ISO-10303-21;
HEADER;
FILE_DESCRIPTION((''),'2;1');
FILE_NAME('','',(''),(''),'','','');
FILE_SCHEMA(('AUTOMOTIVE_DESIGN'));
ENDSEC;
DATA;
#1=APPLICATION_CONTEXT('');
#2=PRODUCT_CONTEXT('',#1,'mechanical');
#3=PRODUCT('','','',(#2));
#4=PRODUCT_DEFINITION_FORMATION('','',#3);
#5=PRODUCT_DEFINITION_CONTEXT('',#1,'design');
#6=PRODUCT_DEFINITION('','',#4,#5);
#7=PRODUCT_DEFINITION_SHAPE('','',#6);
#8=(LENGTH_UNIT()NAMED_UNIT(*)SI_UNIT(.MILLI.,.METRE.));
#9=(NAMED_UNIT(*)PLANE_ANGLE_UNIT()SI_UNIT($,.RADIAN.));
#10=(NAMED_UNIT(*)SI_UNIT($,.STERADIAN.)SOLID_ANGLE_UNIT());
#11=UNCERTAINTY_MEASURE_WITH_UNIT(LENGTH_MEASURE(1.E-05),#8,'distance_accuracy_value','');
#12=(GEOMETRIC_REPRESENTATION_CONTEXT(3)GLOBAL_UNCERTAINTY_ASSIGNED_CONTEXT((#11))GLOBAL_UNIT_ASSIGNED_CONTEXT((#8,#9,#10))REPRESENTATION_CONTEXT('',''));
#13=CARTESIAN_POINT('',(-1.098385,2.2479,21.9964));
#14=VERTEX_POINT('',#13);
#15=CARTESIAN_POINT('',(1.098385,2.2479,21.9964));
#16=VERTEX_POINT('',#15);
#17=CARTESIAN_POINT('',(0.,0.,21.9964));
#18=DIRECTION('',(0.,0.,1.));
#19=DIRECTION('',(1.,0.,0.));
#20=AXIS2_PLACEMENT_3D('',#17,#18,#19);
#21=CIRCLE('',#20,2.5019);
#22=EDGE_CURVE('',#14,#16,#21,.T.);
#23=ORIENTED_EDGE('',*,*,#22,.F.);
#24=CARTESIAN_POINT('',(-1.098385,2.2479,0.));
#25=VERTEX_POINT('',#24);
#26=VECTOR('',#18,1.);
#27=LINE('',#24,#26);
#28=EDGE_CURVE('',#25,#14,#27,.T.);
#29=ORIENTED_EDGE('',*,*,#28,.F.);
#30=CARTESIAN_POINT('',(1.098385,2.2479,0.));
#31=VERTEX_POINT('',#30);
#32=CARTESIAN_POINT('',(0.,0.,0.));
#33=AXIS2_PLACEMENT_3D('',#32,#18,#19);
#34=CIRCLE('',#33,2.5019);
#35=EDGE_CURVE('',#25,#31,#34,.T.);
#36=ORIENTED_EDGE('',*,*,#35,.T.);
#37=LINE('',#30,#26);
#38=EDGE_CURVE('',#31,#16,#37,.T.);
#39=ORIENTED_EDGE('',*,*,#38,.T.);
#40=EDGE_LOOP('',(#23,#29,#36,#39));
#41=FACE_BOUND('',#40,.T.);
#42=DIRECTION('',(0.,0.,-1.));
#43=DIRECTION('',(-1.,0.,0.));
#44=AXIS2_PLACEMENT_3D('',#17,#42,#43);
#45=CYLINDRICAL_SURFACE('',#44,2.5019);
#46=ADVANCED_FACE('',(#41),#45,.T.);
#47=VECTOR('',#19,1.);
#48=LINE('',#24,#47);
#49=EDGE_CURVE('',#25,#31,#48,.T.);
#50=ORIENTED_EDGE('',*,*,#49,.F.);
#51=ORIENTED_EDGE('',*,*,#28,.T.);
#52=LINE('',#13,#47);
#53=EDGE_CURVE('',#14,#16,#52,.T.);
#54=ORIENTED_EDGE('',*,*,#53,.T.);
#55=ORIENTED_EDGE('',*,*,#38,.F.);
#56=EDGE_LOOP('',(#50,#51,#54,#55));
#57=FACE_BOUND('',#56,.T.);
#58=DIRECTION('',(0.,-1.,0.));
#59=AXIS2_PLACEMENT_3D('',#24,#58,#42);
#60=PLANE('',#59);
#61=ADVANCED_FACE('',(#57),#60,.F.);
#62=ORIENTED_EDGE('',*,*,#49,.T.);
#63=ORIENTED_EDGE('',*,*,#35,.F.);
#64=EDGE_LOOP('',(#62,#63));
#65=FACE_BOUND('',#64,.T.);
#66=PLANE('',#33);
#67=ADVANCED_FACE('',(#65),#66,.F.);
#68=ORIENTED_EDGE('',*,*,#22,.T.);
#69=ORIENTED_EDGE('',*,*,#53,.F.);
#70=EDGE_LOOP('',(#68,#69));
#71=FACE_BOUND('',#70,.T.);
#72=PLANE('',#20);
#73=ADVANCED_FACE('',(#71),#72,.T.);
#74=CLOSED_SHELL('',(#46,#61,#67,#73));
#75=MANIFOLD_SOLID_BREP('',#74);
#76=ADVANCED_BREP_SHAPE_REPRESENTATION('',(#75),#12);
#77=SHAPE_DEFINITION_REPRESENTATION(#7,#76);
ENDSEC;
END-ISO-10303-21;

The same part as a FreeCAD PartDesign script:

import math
import FreeCAD as App
import Part
import Sketcher
Q = App.Units.Quantity

doc = App.newDocument("Part")
body = doc.addObject("PartDesign::Body", "Body")

sketch1 = doc.addObject("Sketcher::SketchObject", "Sketch")
body.addObject(sketch1)
sketch1.AttachmentSupport = (doc.XY_Plane, [""])
sketch1.MapMode = "FlatFace"
sketch1.addGeometry(Part.Circle(App.Vector(0, 0, 0), App.Vector(0, 0, 1), 2.5), False)
sketch1.addConstraint(Sketcher.Constraint("Coincident", 0, 3, -1, 1))
sketch1.addConstraint(Sketcher.Constraint("Diameter", 0, Q("0.197 in")))
pad1 = doc.addObject("PartDesign::Pad", "Pad")
body.addObject(pad1)
pad1.Profile = sketch1
pad1.Length = Q("0.866 in")

sketch2 = doc.addObject("Sketcher::SketchObject", "Sketch001")
body.addObject(sketch2)
sketch2.AttachmentSupport = (doc.XY_Plane, [""])
sketch2.MapMode = "FlatFace"
sketch2.addGeometry(Part.LineSegment(App.Vector(-1.1, 2.2, 0), App.Vector(1.1, 2.2, 0)), False)
sketch2.addGeometry(Part.ArcOfCircle(Part.Circle(App.Vector(0, 0, 0), App.Vector(0, 0, 1), 2.5), math.radians(64), math.radians(116)), False)
sketch2.addConstraint(Sketcher.Constraint("Coincident", 0, 1, 1, 2))
sketch2.addConstraint(Sketcher.Constraint("Coincident", 1, 1, 0, 2))
sketch2.addConstraint(Sketcher.Constraint("Horizontal", 0))
sketch2.addConstraint(Sketcher.Constraint("Coincident", 1, 3, -1, 1))
sketch2.addConstraint(Sketcher.Constraint("Radius", 1, Q("0.0985 in")))
sketch2.addConstraint(Sketcher.Constraint("DistanceY", -1, 1, 0, 1, Q("0.0885 in")))
pocket1 = doc.addObject("PartDesign::Pocket", "Pocket")
body.addObject(pocket1)
pocket1.Profile = sketch2
pocket1.Length = Q("0.866 in")
pocket1.Reversed = True

doc.recompute()
